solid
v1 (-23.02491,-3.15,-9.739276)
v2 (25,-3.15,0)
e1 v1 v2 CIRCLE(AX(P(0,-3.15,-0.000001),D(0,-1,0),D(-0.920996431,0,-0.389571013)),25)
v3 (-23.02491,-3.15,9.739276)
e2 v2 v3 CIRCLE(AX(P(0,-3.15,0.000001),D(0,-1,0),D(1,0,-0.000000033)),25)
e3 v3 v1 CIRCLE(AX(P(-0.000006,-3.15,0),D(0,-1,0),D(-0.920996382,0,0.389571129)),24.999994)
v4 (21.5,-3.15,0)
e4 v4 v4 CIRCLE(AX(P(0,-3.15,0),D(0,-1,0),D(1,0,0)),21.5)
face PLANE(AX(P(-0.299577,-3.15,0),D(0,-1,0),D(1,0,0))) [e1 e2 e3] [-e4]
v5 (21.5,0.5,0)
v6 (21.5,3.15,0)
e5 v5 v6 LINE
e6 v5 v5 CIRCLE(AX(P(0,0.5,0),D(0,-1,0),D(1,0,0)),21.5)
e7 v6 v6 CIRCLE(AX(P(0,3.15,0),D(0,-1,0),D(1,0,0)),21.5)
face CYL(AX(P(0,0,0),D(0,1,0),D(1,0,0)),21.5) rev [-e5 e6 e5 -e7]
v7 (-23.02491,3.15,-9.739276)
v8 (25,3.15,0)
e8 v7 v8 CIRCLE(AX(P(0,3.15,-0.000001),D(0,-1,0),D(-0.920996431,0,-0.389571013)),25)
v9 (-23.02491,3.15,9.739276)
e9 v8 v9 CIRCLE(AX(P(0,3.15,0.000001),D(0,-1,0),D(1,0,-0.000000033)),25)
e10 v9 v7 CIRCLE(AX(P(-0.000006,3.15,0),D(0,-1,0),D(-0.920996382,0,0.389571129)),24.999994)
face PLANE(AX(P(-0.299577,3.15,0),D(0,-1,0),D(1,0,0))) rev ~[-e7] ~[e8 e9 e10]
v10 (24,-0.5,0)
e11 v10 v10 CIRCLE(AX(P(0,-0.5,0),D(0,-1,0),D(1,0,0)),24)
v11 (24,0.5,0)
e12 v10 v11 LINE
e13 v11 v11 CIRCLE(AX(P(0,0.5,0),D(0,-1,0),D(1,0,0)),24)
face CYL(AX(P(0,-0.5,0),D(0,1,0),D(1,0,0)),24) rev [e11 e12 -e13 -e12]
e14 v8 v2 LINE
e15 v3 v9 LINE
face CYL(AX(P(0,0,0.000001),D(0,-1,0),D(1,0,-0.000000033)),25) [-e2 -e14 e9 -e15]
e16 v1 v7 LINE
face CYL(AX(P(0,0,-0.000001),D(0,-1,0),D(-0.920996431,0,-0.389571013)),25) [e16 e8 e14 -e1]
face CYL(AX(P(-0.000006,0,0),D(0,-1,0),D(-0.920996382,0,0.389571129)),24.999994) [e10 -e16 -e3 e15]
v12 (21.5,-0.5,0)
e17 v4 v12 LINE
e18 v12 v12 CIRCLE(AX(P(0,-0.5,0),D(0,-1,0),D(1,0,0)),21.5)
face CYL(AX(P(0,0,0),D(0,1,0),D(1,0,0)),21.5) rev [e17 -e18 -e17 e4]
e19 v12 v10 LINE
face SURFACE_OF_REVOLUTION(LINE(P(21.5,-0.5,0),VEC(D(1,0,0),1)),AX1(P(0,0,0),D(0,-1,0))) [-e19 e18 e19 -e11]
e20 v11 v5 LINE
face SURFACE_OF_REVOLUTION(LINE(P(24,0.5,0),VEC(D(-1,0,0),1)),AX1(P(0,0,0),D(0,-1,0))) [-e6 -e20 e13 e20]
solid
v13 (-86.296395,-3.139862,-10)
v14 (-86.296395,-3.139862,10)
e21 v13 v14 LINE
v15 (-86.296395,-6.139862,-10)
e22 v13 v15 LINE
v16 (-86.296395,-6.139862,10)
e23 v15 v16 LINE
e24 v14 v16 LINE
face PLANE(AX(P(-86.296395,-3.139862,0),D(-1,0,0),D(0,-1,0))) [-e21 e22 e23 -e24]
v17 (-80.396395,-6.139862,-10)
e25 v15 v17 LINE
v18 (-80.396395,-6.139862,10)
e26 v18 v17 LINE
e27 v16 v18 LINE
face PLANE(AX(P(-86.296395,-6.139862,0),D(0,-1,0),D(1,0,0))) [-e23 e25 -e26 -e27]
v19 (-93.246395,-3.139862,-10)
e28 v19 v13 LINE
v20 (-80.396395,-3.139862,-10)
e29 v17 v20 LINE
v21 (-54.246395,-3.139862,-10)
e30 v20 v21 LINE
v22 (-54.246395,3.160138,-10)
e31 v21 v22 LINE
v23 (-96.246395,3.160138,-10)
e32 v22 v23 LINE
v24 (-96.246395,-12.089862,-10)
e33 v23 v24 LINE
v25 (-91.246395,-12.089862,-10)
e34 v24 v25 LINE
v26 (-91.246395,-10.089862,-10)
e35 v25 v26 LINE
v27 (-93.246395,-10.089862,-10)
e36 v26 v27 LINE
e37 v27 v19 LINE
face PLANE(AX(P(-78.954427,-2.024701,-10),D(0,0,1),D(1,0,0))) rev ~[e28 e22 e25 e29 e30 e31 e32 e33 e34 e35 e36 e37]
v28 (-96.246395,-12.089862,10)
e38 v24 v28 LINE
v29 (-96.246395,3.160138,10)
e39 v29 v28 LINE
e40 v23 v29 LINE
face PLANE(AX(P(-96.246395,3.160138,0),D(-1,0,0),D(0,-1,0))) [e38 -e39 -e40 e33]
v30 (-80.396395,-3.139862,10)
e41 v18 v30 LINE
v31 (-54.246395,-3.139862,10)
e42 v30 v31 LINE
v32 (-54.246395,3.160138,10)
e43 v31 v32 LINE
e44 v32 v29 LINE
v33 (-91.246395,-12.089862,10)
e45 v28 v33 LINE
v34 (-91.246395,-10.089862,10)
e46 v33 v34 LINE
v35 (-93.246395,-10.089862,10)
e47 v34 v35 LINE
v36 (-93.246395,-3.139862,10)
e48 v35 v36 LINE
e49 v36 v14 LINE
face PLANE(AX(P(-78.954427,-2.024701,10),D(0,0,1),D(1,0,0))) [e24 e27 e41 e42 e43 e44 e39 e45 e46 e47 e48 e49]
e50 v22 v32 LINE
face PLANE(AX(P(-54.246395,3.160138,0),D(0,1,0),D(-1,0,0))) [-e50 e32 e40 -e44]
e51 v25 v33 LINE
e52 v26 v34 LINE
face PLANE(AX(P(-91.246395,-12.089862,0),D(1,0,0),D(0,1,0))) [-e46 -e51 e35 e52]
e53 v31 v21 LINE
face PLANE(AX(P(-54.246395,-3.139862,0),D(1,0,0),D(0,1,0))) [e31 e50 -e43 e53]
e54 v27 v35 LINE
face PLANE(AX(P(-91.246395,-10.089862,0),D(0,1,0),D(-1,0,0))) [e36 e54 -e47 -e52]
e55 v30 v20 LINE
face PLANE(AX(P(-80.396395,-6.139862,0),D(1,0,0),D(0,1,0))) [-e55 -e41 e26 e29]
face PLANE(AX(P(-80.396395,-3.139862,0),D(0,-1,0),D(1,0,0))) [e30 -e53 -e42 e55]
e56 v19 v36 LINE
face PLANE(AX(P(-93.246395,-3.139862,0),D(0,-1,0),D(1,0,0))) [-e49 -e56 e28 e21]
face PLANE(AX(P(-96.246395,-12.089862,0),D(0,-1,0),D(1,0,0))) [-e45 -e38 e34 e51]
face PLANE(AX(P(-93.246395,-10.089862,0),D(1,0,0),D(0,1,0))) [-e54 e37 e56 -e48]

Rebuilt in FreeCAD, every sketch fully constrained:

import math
import FreeCAD as App
import Part
import Sketcher
from FreeCAD import Vector
Q = App.Units.Quantity

doc = App.newDocument("Part")
params = doc.addObject("Spreadsheet::Sheet", "Params")
for row, (alias, value) in enumerate([
    ("sketch1_diameter", "43 mm"),
    ("sketch1_radius", "25 mm"),
    ("pad1_length", "6.3 mm"),
    ("sketch2_height", "1 mm"),
    ("sketch2_width", "2.5 mm"),
    ("sketch3_diameter", "43 mm"),
    ("sketch4_width", "42 mm"),
    ("sketch4_width2", "5 mm"),
    ("sketch4_width3", "2 mm"),
    ("sketch4_height", "3 mm"),
    ("sketch4_width4", "5.9 mm"),
    ("pad2_length", "20 mm"),
], start=1):
    params.set(f"A{row}", alias)
    params.set(f"B{row}", "=" + value)
    params.setAlias(f"B{row}", alias)

body = doc.addObject("PartDesign::Body", "Body")

sketch1 = doc.addObject("Sketcher::SketchObject", "Sketch")
body.addObject(sketch1)
sketch1.AttachmentSupport = (doc.XZ_Plane, [""])
sketch1.MapMode = "FlatFace"
sketch1.addGeometry(Part.ArcOfCircle(Part.Circle(Vector(0, 0, 0), Vector(0, 0, 1), 25), math.radians(-157), math.radians(0)), False)
sketch1.addGeometry(Part.ArcOfCircle(Part.Circle(Vector(0, 0, 0), Vector(0, 0, 1), 25), math.radians(0), math.radians(157)), False)
sketch1.addGeometry(Part.ArcOfCircle(Part.Circle(Vector(0, 0, 0), Vector(0, 0, 1), 25), math.radians(157), math.radians(203)), False)
sketch1.addGeometry(Part.Circle(Vector(0, 0, 0), Vector(0, 0, 1), 22), False)
sketch1.addConstraint(Sketcher.Constraint("Tangent", 0, 2, 1, 1))
sketch1.addConstraint(Sketcher.Constraint("Tangent", 1, 2, 2, 1))
sketch1.addConstraint(Sketcher.Constraint("Tangent", 2, 2, 0, 1))
sketch1.addConstraint(Sketcher.Constraint("Coincident", 0, 3, -1, 1))
sketch1.addConstraint(Sketcher.Constraint("Coincident", 3, 3, -1, 1))
sketch1.addConstraint(Sketcher.Constraint("PointOnObject", 0, 2, -1))
sketch1.addConstraint(Sketcher.Constraint("Vertical", 1, 2, 2, 2))
sketch1.addConstraint(Sketcher.Constraint("Diameter", 3, Q("43 mm")))
sketch1.addConstraint(Sketcher.Constraint("Radius", 0, Q("25 mm")))
sketch1.addConstraint(Sketcher.Constraint("DistanceX", 1, 2, -1, 1, Q("23.02491 mm")))
sketch1.setExpression("Constraints[7]", "Params.sketch1_diameter")
sketch1.setExpression("Constraints[8]", "Params.sketch1_radius")
pad1 = doc.addObject("PartDesign::Pad", "Pad")
body.addObject(pad1)
pad1.Profile = sketch1
pad1.setExpression("Length", "Params.pad1_length")
pad1.Midplane = True

sketch2 = doc.addObject("Sketcher::SketchObject", "Sketch001")
body.addObject(sketch2)
sketch2.AttachmentSupport = (doc.XY_Plane, [""])
sketch2.MapMode = "FlatFace"
sketch2.addGeometry(Part.LineSegment(Vector(21.5, -0.5, 0), Vector(24, -0.5, 0)), False)
sketch2.addGeometry(Part.LineSegment(Vector(24, -0.5, 0), Vector(24, 0.5, 0)), False)
sketch2.addGeometry(Part.LineSegment(Vector(24, 0.5, 0), Vector(21.5, 0.5, 0)), False)
sketch2.addGeometry(Part.LineSegment(Vector(21.5, 0.5, 0), Vector(21.5, -0.5, 0)), False)
sketch2.addConstraint(Sketcher.Constraint("Coincident", 0, 2, 1, 1))
sketch2.addConstraint(Sketcher.Constraint("Coincident", 1, 2, 2, 1))
sketch2.addConstraint(Sketcher.Constraint("Coincident", 2, 2, 3, 1))
sketch2.addConstraint(Sketcher.Constraint("Coincident", 3, 2, 0, 1))
sketch2.addConstraint(Sketcher.Constraint("Horizontal", 0))
sketch2.addConstraint(Sketcher.Constraint("Vertical", 1))
sketch2.addConstraint(Sketcher.Constraint("Horizontal", 2))
sketch2.addConstraint(Sketcher.Constraint("Vertical", 3))
sketch2.addConstraint(Sketcher.Constraint("DistanceY", 1, 1, 1, 2, Q("1 mm")))
sketch2.addConstraint(Sketcher.Constraint("DistanceX", 0, 1, 0, 2, Q("2.5 mm")))
sketch2.addConstraint(Sketcher.Constraint("DistanceX", -1, 1, 0, 2, Q("24 mm")))
sketch2.addConstraint(Sketcher.Constraint("DistanceY", 0, 2, -1, 1, Q("0.5 mm")))
sketch2.setExpression("Constraints[8]", "Params.sketch2_height")
sketch2.setExpression("Constraints[9]", "Params.sketch2_width")

sketch3 = doc.addObject("Sketcher::SketchObject", "Sketch002")
body.addObject(sketch3)
sketch3.AttachmentSupport = (doc.XZ_Plane, [""])
sketch3.MapMode = "FlatFace"
sketch3.addGeometry(Part.Circle(Vector(0, 0, 0), Vector(0, 0, 1), 22), False)
sketch3.addConstraint(Sketcher.Constraint("Coincident", 0, 3, -1, 1))
sketch3.addConstraint(Sketcher.Constraint("Diameter", 0, Q("43 mm")))
sketch3.setExpression("Constraints[1]", "Params.sketch3_diameter")
doc.recompute()

subtractivepipe = doc.addObject("PartDesign::SubtractivePipe", "SubtractivePipe")
body.addObject(subtractivepipe)
subtractivepipe.Profile = sketch2
subtractivepipe.Spine = (sketch3, ["Edge1"])
body2 = doc.addObject("PartDesign::Body", "Body001")

sketch4 = doc.addObject("Sketcher::SketchObject", "Sketch003")
body2.addObject(sketch4)
sketch4.AttachmentSupport = (doc.getObject("XY_Plane001"), [""])
sketch4.MapMode = "FlatFace"
sketch4.addGeometry(Part.LineSegment(Vector(-54.2, -3.1, 0), Vector(-54.2, 3.2, 0)), False)
sketch4.addGeometry(Part.LineSegment(Vector(-54.2, 3.2, 0), Vector(-96.2, 3.2, 0)), False)
sketch4.addGeometry(Part.LineSegment(Vector(-96.2, 3.2, 0), Vector(-96.2, -12.1, 0)), False)
sketch4.addGeometry(Part.LineSegment(Vector(-96.2, -12.1, 0), Vector(-91.2, -12.1, 0)), False)
sketch4.addGeometry(Part.LineSegment(Vector(-91.2, -12.1, 0), Vector(-91.2, -10.1, 0)), False)
sketch4.addGeometry(Part.LineSegment(Vector(-91.2, -10.1, 0), Vector(-93.2, -10.1, 0)), False)
sketch4.addGeometry(Part.LineSegment(Vector(-93.2, -10.1, 0), Vector(-93.2, -3.1, 0)), False)
sketch4.addGeometry(Part.LineSegment(Vector(-93.2, -3.1, 0), Vector(-86.3, -3.1, 0)), False)
sketch4.addGeometry(Part.LineSegment(Vector(-86.3, -3.1, 0), Vector(-86.3, -6.1, 0)), False)
sketch4.addGeometry(Part.LineSegment(Vector(-86.3, -6.1, 0), Vector(-80.4, -6.1, 0)), False)
sketch4.addGeometry(Part.LineSegment(Vector(-80.4, -6.1, 0), Vector(-80.4, -3.1, 0)), False)
sketch4.addGeometry(Part.LineSegment(Vector(-80.4, -3.1, 0), Vector(-54.2, -3.1, 0)), False)
sketch4.addConstraint(Sketcher.Constraint("Coincident", 0, 2, 1, 1))
sketch4.addConstraint(Sketcher.Constraint("Coincident", 1, 2, 2, 1))
sketch4.addConstraint(Sketcher.Constraint("Coincident", 2, 2, 3, 1))
sketch4.addConstraint(Sketcher.Constraint("Coincident", 3, 2, 4, 1))
sketch4.addConstraint(Sketcher.Constraint("Coincident", 4, 2, 5, 1))
sketch4.addConstraint(Sketcher.Constraint("Coincident", 5, 2, 6, 1))
sketch4.addConstraint(Sketcher.Constraint("Coincident", 6, 2, 7, 1))
sketch4.addConstraint(Sketcher.Constraint("Coincident", 7, 2, 8, 1))
sketch4.addConstraint(Sketcher.Constraint("Coincident", 8, 2, 9, 1))
sketch4.addConstraint(Sketcher.Constraint("Coincident", 9, 2, 10, 1))
sketch4.addConstraint(Sketcher.Constraint("Coincident", 10, 2, 11, 1))
sketch4.addConstraint(Sketcher.Constraint("Coincident", 11, 2, 0, 1))
sketch4.addConstraint(Sketcher.Constraint("Vertical", 0))
sketch4.addConstraint(Sketcher.Constraint("Horizontal", 1))
sketch4.addConstraint(Sketcher.Constraint("Vertical", 2))
sketch4.addConstraint(Sketcher.Constraint("Horizontal", 3))
sketch4.addConstraint(Sketcher.Constraint("Vertical", 4))
sketch4.addConstraint(Sketcher.Constraint("Horizontal", 5))
sketch4.addConstraint(Sketcher.Constraint("Vertical", 6))
sketch4.addConstraint(Sketcher.Constraint("Horizontal", 7))
sketch4.addConstraint(Sketcher.Constraint("Vertical", 8))
sketch4.addConstraint(Sketcher.Constraint("Horizontal", 9))
sketch4.addConstraint(Sketcher.Constraint("Vertical", 10))
sketch4.addConstraint(Sketcher.Constraint("Horizontal", 11))
sketch4.addConstraint(Sketcher.Constraint("Horizontal", 7, 2, 10, 2))
sketch4.addConstraint(Sketcher.Constraint("Equal", 5, 4))
sketch4.addConstraint(Sketcher.Constraint("Equal", 7, 6))
sketch4.addConstraint(Sketcher.Constraint("DistanceX", 1, 2, 1, 1, Q("42 mm")))
sketch4.addConstraint(Sketcher.Constraint("DistanceX", 3, 1, 3, 2, Q("5 mm")))
sketch4.addConstraint(Sketcher.Constraint("DistanceX", 5, 2, 5, 1, Q("2 mm")))
sketch4.addConstraint(Sketcher.Constraint("DistanceY", 8, 2, 8, 1, Q("3 mm")))
sketch4.addConstraint(Sketcher.Constraint("DistanceX", 9, 1, 9, 2, Q("5.9 mm")))
sketch4.addConstraint(Sketcher.Constraint("DistanceY", 0, 1, 0, 2, Q("6.3 mm")))
sketch4.addConstraint(Sketcher.Constraint("DistanceX", 7, 1, 7, 2, Q("6.95 mm")))
sketch4.addConstraint(Sketcher.Constraint("DistanceY", 6, 2, -1, 1, Q("3.139862 mm")))
sketch4.addConstraint(Sketcher.Constraint("DistanceX", 0, 2, -1, 1, Q("54.246395 mm")))
sketch4.setExpression("Constraints[27]", "Params.sketch4_width")
sketch4.setExpression("Constraints[28]", "Params.sketch4_width2")
sketch4.setExpression("Constraints[29]", "Params.sketch4_width3")
sketch4.setExpression("Constraints[30]", "Params.sketch4_height")
sketch4.setExpression("Constraints[31]", "Params.sketch4_width4")
pad2 = doc.addObject("PartDesign::Pad", "Pad001")
body2.addObject(pad2)
pad2.Profile = sketch4
pad2.setExpression("Length", "Params.pad2_length")
pad2.Midplane = True

doc.recompute()
